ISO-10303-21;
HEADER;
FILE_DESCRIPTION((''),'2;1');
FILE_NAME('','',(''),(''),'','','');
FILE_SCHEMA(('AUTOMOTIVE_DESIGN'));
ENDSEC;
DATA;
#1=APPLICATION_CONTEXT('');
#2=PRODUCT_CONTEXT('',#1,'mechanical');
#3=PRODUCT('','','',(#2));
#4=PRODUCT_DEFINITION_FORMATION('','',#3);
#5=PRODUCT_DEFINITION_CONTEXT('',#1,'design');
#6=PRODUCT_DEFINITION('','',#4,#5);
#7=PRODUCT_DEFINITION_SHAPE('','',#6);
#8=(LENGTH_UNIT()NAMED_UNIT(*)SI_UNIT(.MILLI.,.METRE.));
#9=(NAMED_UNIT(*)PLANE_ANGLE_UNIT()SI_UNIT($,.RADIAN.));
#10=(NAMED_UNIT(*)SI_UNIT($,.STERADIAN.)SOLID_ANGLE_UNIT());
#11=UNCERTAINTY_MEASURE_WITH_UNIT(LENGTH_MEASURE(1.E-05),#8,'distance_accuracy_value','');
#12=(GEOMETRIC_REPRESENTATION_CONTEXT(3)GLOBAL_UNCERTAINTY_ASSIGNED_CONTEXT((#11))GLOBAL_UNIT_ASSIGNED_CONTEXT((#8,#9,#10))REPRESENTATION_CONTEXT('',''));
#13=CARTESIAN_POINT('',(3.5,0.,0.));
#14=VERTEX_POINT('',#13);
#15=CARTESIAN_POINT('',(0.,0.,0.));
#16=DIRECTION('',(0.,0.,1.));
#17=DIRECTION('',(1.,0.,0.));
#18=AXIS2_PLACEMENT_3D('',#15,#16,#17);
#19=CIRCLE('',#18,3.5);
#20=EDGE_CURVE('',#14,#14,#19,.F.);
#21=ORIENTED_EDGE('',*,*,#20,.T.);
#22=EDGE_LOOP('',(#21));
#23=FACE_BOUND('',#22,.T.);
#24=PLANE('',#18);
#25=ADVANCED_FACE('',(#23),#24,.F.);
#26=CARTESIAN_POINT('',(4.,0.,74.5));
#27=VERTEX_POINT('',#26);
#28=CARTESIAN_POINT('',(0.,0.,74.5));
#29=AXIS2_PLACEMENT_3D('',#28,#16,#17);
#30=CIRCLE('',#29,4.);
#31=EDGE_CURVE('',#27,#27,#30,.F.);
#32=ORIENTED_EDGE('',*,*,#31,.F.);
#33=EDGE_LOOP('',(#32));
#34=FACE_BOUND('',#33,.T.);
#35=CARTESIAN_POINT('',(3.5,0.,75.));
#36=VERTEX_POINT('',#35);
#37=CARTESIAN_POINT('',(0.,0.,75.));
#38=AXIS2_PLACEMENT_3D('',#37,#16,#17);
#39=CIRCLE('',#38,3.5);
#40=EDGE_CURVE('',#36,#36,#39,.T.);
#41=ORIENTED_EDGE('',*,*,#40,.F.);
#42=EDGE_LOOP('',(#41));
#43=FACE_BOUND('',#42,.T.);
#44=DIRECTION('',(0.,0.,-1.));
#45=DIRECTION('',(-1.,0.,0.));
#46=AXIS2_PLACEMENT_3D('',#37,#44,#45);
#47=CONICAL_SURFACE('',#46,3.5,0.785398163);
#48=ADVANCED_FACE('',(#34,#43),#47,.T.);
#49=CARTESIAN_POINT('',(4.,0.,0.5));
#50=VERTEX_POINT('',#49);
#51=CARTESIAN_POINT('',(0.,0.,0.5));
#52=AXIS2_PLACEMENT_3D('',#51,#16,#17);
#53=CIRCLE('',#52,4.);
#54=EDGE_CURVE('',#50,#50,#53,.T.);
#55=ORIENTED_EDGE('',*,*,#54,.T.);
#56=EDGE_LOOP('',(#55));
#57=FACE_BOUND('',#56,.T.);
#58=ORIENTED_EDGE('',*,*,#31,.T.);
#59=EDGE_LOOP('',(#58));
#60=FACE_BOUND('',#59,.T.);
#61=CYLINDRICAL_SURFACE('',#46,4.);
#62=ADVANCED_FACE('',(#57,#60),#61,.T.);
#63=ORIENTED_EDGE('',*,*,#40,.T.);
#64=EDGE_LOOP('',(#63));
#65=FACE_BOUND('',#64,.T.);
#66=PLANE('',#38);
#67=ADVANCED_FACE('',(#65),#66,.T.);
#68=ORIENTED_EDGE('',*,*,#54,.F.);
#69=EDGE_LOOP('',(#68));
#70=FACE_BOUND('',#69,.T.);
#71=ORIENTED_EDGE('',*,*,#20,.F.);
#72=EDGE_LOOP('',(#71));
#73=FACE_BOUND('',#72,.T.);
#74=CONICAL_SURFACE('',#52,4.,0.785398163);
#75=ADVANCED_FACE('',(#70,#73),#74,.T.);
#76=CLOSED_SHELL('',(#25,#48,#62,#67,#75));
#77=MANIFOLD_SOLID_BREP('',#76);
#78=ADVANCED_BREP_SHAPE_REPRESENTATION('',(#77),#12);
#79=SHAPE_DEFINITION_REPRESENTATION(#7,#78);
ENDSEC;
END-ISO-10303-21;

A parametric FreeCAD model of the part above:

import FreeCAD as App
import Part
import Sketcher

V = App.Vector


def edges_at(feature, points):
    """Names of the edges that pass closest to the given points."""
    edges = feature.Shape.Edges
    near = lambda p: min(range(len(edges)), key=lambda i: edges[i].distToShape(Part.Vertex(*p))[0])
    return sorted({f"Edge{near(p) + 1}" for p in points})

doc = App.newDocument("Part")
body = doc.addObject("PartDesign::Body", "Body")

sketch1 = body.newObject("Sketcher::SketchObject", "Sketch")
sketch1.AttachmentSupport = (doc.getObject("XY_Plane"), [""])
sketch1.MapMode = "FlatFace"
sketch1.addGeometry(Part.Circle(V(0, 0, 0), V(0, 0, 1), 4), False)
sketch1.addConstraint([
    Sketcher.Constraint("Coincident", 0, 3, -1, 1),
    Sketcher.Constraint("Diameter", 0, 8.0),
])
pad1 = body.newObject("PartDesign::Pad", "Pad")
pad1.Profile = sketch1
pad1.Length = 75
doc.recompute()

chamfer = body.newObject("PartDesign::Chamfer", "Chamfer")
chamfer.Base = (pad1, edges_at(pad1, [(-4, 0, 0), (-4, 0, 75)]))
chamfer.Size = 0.5

doc.recompute()
